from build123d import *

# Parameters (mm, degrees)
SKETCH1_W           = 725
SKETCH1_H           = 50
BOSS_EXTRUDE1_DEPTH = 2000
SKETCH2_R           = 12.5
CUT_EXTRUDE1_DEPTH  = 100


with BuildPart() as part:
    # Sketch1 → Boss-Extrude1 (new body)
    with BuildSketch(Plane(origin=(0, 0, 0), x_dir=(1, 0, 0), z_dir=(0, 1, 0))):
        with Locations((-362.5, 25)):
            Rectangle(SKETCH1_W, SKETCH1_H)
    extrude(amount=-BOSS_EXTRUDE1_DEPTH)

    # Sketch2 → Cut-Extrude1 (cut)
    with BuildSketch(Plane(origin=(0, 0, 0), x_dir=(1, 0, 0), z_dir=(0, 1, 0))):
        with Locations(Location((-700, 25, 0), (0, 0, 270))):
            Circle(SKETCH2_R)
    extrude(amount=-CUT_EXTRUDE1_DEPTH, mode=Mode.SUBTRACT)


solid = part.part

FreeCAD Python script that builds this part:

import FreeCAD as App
import Part
import Sketcher

V = App.Vector
Q = App.Units.Quantity


def add_polygon(sketch, points):
    """Adds a closed chain of lines whose ends are joined by coincident constraints."""
    first, n = sketch.GeometryCount, len(points)
    for a, b in zip(points, points[1:] + points[:1]):
        sketch.addGeometry(Part.LineSegment(App.Vector(*a, 0), App.Vector(*b, 0)), False)
    for i in range(n):
        sketch.addConstraint(Sketcher.Constraint("Coincident", first + i, 2, first + (i + 1) % n, 1))

doc = App.newDocument("Part")
body = doc.addObject("PartDesign::Body", "Body")

# Sketch on XZ plane
sketch1 = body.newObject("Sketcher::SketchObject", "Sketch")
sketch1.AttachmentSupport = (doc.getObject("XZ_Plane"), [""])
sketch1.MapMode = "FlatFace"
add_polygon(sketch1, [(-725, -50), (-725, 0), (0, 0), (0, -50)])  # lines 0-3
sketch1.addConstraint([
    Sketcher.Constraint("Vertical", 0),
    Sketcher.Constraint("Horizontal", 1),
    Sketcher.Constraint("Vertical", 2),
    Sketcher.Constraint("Horizontal", 3),
    Sketcher.Constraint("Coincident", 1, 2, -1, 1),
    Sketcher.Constraint("DistanceX", 1, 1, 1, 2, Q("725 mm")),
    Sketcher.Constraint("DistanceY", 0, 1, 0, 2, Q("50 mm")),
])
pad1 = body.newObject("PartDesign::Pad", "Pad")
pad1.Profile = sketch1
pad1.Length = 2000

# Sketch on XZ plane
sketch2 = body.newObject("Sketcher::SketchObject", "Sketch001")
sketch2.AttachmentSupport = (doc.getObject("XZ_Plane"), [""])
sketch2.MapMode = "FlatFace"
sketch2.addGeometry(Part.Circle(V(-700, -25, 0), V(0, 0, 1), 12), False)
sketch2.addConstraint([
    Sketcher.Constraint("Diameter", 0, Q("25 mm")),
    Sketcher.Constraint("DistanceX", 0, 3, -1, 1, Q("700 mm")),
    Sketcher.Constraint("DistanceY", 0, 3, -1, 1, Q("25 mm")),
])
pocket1 = body.newObject("PartDesign::Pocket", "Pocket")
pocket1.Profile = sketch2
pocket1.Length = 100
pocket1.Reversed = True

doc.recompute()
